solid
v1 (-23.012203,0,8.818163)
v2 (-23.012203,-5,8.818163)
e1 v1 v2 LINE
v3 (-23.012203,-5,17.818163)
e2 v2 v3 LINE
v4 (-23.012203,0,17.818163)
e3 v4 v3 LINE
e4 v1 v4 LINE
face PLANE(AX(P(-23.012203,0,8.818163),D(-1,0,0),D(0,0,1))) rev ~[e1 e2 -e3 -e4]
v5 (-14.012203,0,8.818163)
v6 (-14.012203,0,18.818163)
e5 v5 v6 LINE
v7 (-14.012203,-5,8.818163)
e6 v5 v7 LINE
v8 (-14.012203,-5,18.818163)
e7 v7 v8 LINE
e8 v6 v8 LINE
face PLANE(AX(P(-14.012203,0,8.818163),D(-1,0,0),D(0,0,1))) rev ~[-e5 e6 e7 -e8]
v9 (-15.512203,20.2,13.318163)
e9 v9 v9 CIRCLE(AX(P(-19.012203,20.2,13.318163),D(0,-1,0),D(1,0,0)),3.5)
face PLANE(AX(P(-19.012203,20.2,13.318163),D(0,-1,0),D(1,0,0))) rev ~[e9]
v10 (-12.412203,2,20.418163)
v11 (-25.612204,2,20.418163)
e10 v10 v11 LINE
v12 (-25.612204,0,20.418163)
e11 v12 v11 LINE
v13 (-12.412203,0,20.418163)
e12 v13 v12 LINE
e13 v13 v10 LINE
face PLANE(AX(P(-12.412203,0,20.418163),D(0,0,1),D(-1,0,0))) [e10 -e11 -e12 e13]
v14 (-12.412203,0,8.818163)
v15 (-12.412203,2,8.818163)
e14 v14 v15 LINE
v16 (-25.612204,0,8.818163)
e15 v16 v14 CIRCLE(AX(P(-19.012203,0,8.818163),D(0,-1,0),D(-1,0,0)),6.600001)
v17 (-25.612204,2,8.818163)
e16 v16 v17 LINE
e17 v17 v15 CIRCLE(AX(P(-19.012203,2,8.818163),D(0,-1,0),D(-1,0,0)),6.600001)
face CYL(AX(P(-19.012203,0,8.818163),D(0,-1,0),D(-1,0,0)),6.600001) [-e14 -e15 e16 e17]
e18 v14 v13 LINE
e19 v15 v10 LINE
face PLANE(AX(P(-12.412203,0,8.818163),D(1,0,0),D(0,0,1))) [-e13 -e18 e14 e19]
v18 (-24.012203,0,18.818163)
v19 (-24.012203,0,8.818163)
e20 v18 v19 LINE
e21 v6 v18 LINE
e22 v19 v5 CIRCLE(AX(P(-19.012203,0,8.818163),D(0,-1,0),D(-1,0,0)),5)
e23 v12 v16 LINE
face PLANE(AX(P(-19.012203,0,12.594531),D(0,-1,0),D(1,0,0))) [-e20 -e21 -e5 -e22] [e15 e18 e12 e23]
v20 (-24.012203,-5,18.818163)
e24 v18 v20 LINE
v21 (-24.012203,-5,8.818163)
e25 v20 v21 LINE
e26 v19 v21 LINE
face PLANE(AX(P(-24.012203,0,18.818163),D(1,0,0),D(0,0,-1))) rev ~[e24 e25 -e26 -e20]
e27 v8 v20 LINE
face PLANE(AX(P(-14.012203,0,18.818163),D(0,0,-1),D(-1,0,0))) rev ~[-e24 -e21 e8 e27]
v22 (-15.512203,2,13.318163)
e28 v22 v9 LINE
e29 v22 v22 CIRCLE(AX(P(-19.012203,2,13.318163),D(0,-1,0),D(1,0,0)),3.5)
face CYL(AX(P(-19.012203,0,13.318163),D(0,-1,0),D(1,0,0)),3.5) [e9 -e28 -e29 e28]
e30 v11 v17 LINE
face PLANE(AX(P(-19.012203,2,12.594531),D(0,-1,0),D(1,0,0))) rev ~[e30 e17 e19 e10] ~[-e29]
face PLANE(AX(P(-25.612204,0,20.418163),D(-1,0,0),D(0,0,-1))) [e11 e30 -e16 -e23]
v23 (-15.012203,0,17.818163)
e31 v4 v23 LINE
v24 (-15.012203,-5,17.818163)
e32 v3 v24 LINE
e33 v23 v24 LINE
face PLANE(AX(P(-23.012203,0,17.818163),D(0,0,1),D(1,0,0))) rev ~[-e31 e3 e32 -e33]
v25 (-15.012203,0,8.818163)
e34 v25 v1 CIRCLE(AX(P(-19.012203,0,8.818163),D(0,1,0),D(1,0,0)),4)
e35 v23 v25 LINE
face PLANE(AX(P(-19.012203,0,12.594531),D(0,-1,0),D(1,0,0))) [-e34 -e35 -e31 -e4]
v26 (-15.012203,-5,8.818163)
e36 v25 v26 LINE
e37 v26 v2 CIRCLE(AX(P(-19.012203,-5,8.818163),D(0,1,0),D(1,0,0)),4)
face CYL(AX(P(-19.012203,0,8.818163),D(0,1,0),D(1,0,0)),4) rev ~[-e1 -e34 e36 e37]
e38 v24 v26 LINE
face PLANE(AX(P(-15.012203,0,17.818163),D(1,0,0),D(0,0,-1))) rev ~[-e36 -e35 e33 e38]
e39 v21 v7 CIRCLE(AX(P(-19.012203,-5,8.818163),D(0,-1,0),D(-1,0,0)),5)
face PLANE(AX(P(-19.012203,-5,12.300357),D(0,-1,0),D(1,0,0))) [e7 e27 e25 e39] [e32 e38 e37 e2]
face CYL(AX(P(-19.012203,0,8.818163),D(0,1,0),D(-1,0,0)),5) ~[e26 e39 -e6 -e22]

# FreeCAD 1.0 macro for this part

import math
import FreeCAD as App
import Part
import Sketcher
from FreeCAD import Vector
Q = App.Units.Quantity

doc = App.newDocument("Part")
body = doc.addObject("PartDesign::Body", "Body")

# Sketch on XZ plane
sketch1 = body.newObject("Sketcher::SketchObject", "Sketch")
sketch1.AttachmentSupport = (doc.getObject("XZ_Plane"), [""])
sketch1.MapMode = "FlatFace"
sketch1.addGeometry([
    Part.LineSegment(Vector(-12.4, 20.4, 0), Vector(-25.6, 20.4, 0)),  # 0
    Part.LineSegment(Vector(-25.6, 20.4, 0), Vector(-25.6, 8.8, 0)),  # 1
    Part.ArcOfCircle(Part.Circle(Vector(-19, 8.8, 0), Vector(0, 0, 1), 6.6), math.radians(180), math.radians(360)),  # 2
    Part.LineSegment(Vector(-12.4, 8.8, 0), Vector(-12.4, 20.4, 0)),  # 3
    Part.Circle(Vector(-19, 13.3, 0), Vector(0, 0, 1), 3.5),  # 4
], False)
sketch1.addConstraint([
    Sketcher.Constraint("Coincident", 0, 2, 1, 1),
    Sketcher.Constraint("Tangent", 1, 2, 2, 1),
    Sketcher.Constraint("Tangent", 2, 2, 3, 1),
    Sketcher.Constraint("Coincident", 3, 2, 0, 1),
    Sketcher.Constraint("Horizontal", 0),
    Sketcher.Constraint("Vertical", 1),
    Sketcher.Constraint("Vertical", 3),
    Sketcher.Constraint("Vertical", 2, 3, 4, 3),
    Sketcher.Constraint("Diameter", 4, Q("7 mm")),
    Sketcher.Constraint("Radius", 2, Q("6.600001 mm")),
    Sketcher.Constraint("DistanceY", 1, 2, 1, 1, Q("11.600001 mm")),
    Sketcher.Constraint("DistanceY", 2, 3, 4, 3, Q("4.5 mm")),
    Sketcher.Constraint("DistanceX", 2, 3, -1, 1, Q("19.012203 mm")),
    Sketcher.Constraint("DistanceY", -1, 1, 2, 3, Q("8.818163 mm")),
])
pad1 = body.newObject("PartDesign::Pad", "Pad")
pad1.Profile = sketch1
pad1.Length = 2
pad1.Reversed = True

# Sketch on XZ plane
sketch2 = body.newObject("Sketcher::SketchObject", "Sketch001")
sketch2.AttachmentSupport = (doc.getObject("XZ_Plane"), [""])
sketch2.MapMode = "FlatFace"
sketch2.addGeometry([
    Part.LineSegment(Vector(-14, 18.8, 0), Vector(-24, 18.8, 0)),  # 0
    Part.LineSegment(Vector(-24, 18.8, 0), Vector(-24, 8.8, 0)),  # 1
    Part.ArcOfCircle(Part.Circle(Vector(-19, 8.8, 0), Vector(0, 0, 1), 5), math.radians(180), math.radians(360)),  # 2
    Part.LineSegment(Vector(-14, 8.8, 0), Vector(-14, 18.8, 0)),  # 3
    Part.ArcOfCircle(Part.Circle(Vector(-19, 8.8, 0), Vector(0, 0, 1), 4), math.radians(180), math.radians(360)),  # 4
    Part.LineSegment(Vector(-23, 8.8, 0), Vector(-23, 17.8, 0)),  # 5
    Part.LineSegment(Vector(-23, 17.8, 0), Vector(-15, 17.8, 0)),  # 6
    Part.LineSegment(Vector(-15, 17.8, 0), Vector(-15, 8.8, 0)),  # 7
], False)
sketch2.addConstraint([
    Sketcher.Constraint("Coincident", 0, 2, 1, 1),
    Sketcher.Constraint("Tangent", 1, 2, 2, 1),
    Sketcher.Constraint("Tangent", 2, 2, 3, 1),
    Sketcher.Constraint("Coincident", 3, 2, 0, 1),
    Sketcher.Constraint("Tangent", 4, 1, 5, 1),
    Sketcher.Constraint("Coincident", 5, 2, 6, 1),
    Sketcher.Constraint("Coincident", 6, 2, 7, 1),
    Sketcher.Constraint("Tangent", 7, 2, 4, 2),
    Sketcher.Constraint("Horizontal", 0),
    Sketcher.Constraint("Vertical", 1),
    Sketcher.Constraint("Vertical", 3),
    Sketcher.Constraint("Vertical", 5),
    Sketcher.Constraint("Horizontal", 6),
    Sketcher.Constraint("Vertical", 7),
    Sketcher.Constraint("Coincident", 4, 3, 2, 3),
    Sketcher.Constraint("Equal", 0, 1),
    Sketcher.Constraint("Radius", 2, Q("5 mm")),
    Sketcher.Constraint("Radius", 4, Q("4 mm")),
    Sketcher.Constraint("DistanceY", 5, 1, 5, 2, Q("9 mm")),
    Sketcher.Constraint("DistanceX", 2, 3, -1, 1, Q("19.012203 mm")),
    Sketcher.Constraint("DistanceY", -1, 1, 2, 3, Q("8.818163 mm")),
])
pad2 = body.newObject("PartDesign::Pad", "Pad001")
pad2.Profile = sketch2
pad2.Length = 5

# Sketch on XZ plane
sketch3 = body.newObject("Sketcher::SketchObject", "Sketch002")
sketch3.AttachmentSupport = (doc.getObject("XZ_Plane"), [""])
sketch3.MapMode = "FlatFace"
sketch3.addGeometry(Part.Circle(Vector(-19, 13.3, 0), Vector(0, 0, 1), 3.5), False)
sketch3.addConstraint([
    Sketcher.Constraint("Diameter", 0, Q("7 mm")),
    Sketcher.Constraint("DistanceX", 0, 3, -1, 1, Q("19.012203 mm")),
    Sketcher.Constraint("DistanceY", -1, 1, 0, 3, Q("13.318163 mm")),
])
pad3 = body.newObject("PartDesign::Pad", "Pad002")
pad3.Profile = sketch3
pad3.Length = 20.2
pad3.Reversed = True

doc.recompute()
